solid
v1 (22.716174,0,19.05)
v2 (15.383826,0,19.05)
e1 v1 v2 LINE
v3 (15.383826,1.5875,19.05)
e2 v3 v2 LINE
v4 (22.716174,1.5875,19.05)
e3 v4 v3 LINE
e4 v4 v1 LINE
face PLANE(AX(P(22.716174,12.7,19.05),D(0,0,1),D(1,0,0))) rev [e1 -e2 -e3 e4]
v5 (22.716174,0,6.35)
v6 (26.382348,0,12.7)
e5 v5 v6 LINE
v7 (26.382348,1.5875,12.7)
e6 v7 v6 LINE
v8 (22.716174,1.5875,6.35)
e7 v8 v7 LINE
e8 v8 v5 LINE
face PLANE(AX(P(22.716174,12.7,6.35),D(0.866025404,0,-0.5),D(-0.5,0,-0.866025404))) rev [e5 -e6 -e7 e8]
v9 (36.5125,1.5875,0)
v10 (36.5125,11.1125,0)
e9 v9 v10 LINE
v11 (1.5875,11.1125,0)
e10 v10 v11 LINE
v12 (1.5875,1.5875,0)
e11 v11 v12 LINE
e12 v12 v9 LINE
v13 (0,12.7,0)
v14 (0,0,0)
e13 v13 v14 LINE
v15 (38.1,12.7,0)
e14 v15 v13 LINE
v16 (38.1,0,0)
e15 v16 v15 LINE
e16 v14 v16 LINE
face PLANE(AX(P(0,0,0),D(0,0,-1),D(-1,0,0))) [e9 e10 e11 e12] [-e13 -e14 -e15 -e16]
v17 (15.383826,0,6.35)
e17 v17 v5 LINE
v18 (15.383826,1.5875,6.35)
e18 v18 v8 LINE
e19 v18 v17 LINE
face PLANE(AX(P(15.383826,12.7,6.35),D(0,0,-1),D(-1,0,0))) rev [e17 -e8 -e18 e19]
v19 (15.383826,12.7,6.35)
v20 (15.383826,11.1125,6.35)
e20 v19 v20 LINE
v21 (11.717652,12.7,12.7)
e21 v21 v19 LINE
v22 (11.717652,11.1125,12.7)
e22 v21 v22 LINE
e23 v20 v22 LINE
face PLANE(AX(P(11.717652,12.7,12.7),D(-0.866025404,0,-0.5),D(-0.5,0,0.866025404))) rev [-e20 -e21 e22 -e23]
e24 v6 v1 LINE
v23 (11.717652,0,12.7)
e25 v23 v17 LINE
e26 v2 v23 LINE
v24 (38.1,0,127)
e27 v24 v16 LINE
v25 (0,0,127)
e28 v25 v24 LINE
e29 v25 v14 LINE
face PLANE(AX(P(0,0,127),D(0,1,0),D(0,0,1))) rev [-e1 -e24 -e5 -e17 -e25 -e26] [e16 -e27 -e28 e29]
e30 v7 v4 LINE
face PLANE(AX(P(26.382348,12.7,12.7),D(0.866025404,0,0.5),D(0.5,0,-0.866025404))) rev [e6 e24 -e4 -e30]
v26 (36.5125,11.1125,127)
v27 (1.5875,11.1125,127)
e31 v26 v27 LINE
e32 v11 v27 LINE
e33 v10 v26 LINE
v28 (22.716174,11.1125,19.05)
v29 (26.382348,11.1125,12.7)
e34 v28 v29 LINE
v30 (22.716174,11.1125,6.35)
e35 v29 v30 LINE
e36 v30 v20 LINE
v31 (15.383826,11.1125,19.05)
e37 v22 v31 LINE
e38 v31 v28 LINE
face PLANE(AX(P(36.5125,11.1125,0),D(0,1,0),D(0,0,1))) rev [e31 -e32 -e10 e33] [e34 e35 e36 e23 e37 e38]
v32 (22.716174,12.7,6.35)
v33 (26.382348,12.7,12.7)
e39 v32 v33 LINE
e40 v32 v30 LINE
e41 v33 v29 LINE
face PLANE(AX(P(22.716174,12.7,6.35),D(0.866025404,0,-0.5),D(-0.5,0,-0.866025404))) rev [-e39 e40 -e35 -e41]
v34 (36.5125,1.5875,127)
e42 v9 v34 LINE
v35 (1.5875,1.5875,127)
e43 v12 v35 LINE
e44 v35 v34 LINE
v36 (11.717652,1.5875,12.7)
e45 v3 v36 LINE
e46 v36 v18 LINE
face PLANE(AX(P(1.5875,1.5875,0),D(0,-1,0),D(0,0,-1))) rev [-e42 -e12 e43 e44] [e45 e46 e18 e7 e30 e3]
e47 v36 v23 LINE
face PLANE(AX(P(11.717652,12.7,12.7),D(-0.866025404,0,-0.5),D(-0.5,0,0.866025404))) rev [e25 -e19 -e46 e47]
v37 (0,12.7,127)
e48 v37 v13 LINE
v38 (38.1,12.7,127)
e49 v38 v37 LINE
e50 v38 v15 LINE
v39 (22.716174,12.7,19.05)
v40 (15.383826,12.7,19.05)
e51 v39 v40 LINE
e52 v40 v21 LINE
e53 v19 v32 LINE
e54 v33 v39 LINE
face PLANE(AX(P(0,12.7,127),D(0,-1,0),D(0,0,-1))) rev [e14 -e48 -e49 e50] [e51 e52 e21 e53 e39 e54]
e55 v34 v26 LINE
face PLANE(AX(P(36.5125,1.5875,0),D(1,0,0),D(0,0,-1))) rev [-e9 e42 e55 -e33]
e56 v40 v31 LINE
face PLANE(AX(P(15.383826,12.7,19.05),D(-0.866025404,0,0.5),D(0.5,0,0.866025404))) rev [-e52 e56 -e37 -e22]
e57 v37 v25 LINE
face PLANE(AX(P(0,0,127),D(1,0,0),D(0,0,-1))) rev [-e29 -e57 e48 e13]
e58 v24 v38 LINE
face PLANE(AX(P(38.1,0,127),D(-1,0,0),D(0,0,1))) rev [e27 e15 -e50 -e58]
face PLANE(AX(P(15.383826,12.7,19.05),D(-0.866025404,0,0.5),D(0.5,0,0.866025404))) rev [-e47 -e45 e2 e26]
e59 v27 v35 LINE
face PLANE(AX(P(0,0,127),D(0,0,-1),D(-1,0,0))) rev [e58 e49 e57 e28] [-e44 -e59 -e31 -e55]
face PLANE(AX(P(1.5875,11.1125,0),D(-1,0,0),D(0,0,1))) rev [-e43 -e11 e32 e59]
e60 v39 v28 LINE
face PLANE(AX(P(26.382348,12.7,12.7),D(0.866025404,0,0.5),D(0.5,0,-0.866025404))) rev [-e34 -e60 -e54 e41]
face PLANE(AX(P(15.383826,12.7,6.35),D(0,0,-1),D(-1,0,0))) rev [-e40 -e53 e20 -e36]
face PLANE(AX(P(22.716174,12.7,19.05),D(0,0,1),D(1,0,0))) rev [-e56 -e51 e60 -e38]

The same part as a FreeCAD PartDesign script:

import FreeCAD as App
import Part
import Sketcher

V = App.Vector
Q = App.Units.Quantity

doc = App.newDocument("Part")
body = doc.addObject("PartDesign::Body", "Body")

# Sketch on XY plane
sketch1 = body.newObject("Sketcher::SketchObject", "Sketch")
sketch1.AttachmentSupport = (doc.getObject("XY_Plane"), [""])
sketch1.MapMode = "FlatFace"
sketch1.addGeometry(Part.LineSegment(V(0, 13, 0), V(0, 0, 0)), False)
sketch1.addGeometry(Part.LineSegment(V(0, 0, 0), V(38, 0, 0)), False)
sketch1.addGeometry(Part.LineSegment(V(38, 0, 0), V(38, 13, 0)), False)
sketch1.addGeometry(Part.LineSegment(V(38, 13, 0), V(0, 13, 0)), False)
sketch1.addConstraint(Sketcher.Constraint("Coincident", 0, 2, 1, 1))
sketch1.addConstraint(Sketcher.Constraint("Coincident", 1, 2, 2, 1))
sketch1.addConstraint(Sketcher.Constraint("Coincident", 2, 2, 3, 1))
sketch1.addConstraint(Sketcher.Constraint("Coincident", 3, 2, 0, 1))
sketch1.addConstraint(Sketcher.Constraint("Vertical", 0))
sketch1.addConstraint(Sketcher.Constraint("Horizontal", 1))
sketch1.addConstraint(Sketcher.Constraint("Vertical", 2))
sketch1.addConstraint(Sketcher.Constraint("Horizontal", 3))
sketch1.addConstraint(Sketcher.Constraint("Coincident", 0, 2, -1, 1))
sketch1.addConstraint(Sketcher.Constraint("DistanceX", 1, 1, 1, 2, Q("1.5 in")))
sketch1.addConstraint(Sketcher.Constraint("DistanceY", 0, 2, 0, 1, Q("0.5 in")))
pad1 = body.newObject("PartDesign::Pad", "Pad")
pad1.Profile = sketch1
pad1.Length = Q("5 in")

# Sketch on XY plane
sketch2 = body.newObject("Sketcher::SketchObject", "Sketch001")
sketch2.AttachmentSupport = (doc.getObject("XY_Plane"), [""])
sketch2.MapMode = "FlatFace"
sketch2.AttachmentOffset = App.Placement(V(0, 0, 5 * 25.4), App.Rotation())
sketch2.addGeometry(Part.LineSegment(V(2, 11, 0), V(2, 2, 0)), False)
sketch2.addGeometry(Part.LineSegment(V(2, 2, 0), V(37, 2, 0)), False)
sketch2.addGeometry(Part.LineSegment(V(37, 2, 0), V(37, 11, 0)), False)
sketch2.addGeometry(Part.LineSegment(V(37, 11, 0), V(2, 11, 0)), False)
sketch2.addConstraint(Sketcher.Constraint("Coincident", 0, 2, 1, 1))
sketch2.addConstraint(Sketcher.Constraint("Coincident", 1, 2, 2, 1))
sketch2.addConstraint(Sketcher.Constraint("Coincident", 2, 2, 3, 1))
sketch2.addConstraint(Sketcher.Constraint("Coincident", 3, 2, 0, 1))
sketch2.addConstraint(Sketcher.Constraint("Vertical", 0))
sketch2.addConstraint(Sketcher.Constraint("Horizontal", 1))
sketch2.addConstraint(Sketcher.Constraint("Vertical", 2))
sketch2.addConstraint(Sketcher.Constraint("Horizontal", 3))
sketch2.addConstraint(Sketcher.Constraint("DistanceX", 1, 1, 1, 2, Q("1.375 in")))
sketch2.addConstraint(Sketcher.Constraint("DistanceY", 0, 2, 0, 1, Q("0.375 in")))
sketch2.addConstraint(Sketcher.Constraint("DistanceX", -1, 1, 0, 2, Q("0.0625 in")))
sketch2.addConstraint(Sketcher.Constraint("DistanceY", -1, 1, 0, 2, Q("0.0625 in")))
pocket1 = body.newObject("PartDesign::Pocket", "Pocket")
pocket1.Profile = sketch2
pocket1.Type = "ThroughAll"

# Sketch on XZ plane
sketch3 = body.newObject("Sketcher::SketchObject", "Sketch002")
sketch3.AttachmentSupport = (doc.getObject("XZ_Plane"), [""])
sketch3.MapMode = "FlatFace"
sketch3.addGeometry(Part.LineSegment(V(26, 13, 0), V(23, 19, 0)), False)
sketch3.addGeometry(Part.LineSegment(V(23, 19, 0), V(15, 19, 0)), False)
sketch3.addGeometry(Part.LineSegment(V(15, 19, 0), V(12, 13, 0)), False)
sketch3.addGeometry(Part.LineSegment(V(12, 13, 0), V(15, 6, 0)), False)
sketch3.addGeometry(Part.LineSegment(V(15, 6, 0), V(23, 6, 0)), False)
sketch3.addGeometry(Part.LineSegment(V(23, 6, 0), V(26, 13, 0)), False)
sketch3.addConstraint(Sketcher.Constraint("Coincident", 0, 2, 1, 1))
sketch3.addConstraint(Sketcher.Constraint("Coincident", 1, 2, 2, 1))
sketch3.addConstraint(Sketcher.Constraint("Coincident", 2, 2, 3, 1))
sketch3.addConstraint(Sketcher.Constraint("Coincident", 3, 2, 4, 1))
sketch3.addConstraint(Sketcher.Constraint("Coincident", 4, 2, 5, 1))
sketch3.addConstraint(Sketcher.Constraint("Coincident", 5, 2, 0, 1))
sketch3.addConstraint(Sketcher.Constraint("Horizontal", 1))
sketch3.addConstraint(Sketcher.Constraint("Horizontal", 4))
sketch3.addConstraint(Sketcher.Constraint("Parallel", 0, 3))
sketch3.addConstraint(Sketcher.Constraint("Parallel", 2, 5))
sketch3.addConstraint(Sketcher.Constraint("Horizontal", 2, 2, 5, 2))
sketch3.addConstraint(Sketcher.Constraint("Vertical", 1, 2, 3, 2))
sketch3.addConstraint(Sketcher.Constraint("Vertical", 0, 2, 4, 2))
sketch3.addConstraint(Sketcher.Constraint("Angle", 0, Q("120 deg")))
sketch3.addConstraint(Sketcher.Constraint("DistanceY", -1, 1, 2, 2, Q("0.5 in")))
sketch3.addConstraint(Sketcher.Constraint("DistanceY", 3, 2, 1, 2, Q("0.5 in")))
sketch3.addConstraint(Sketcher.Constraint("DistanceX", 1, 2, 1, 1, 7.332348))
sketch3.addConstraint(Sketcher.Constraint("DistanceX", -1, 1, 2, 2, 11.717652))
pocket2 = body.newObject("PartDesign::Pocket", "Pocket001")
pocket2.Profile = sketch3
pocket2.Type = "ThroughAll"

doc.recompute()
